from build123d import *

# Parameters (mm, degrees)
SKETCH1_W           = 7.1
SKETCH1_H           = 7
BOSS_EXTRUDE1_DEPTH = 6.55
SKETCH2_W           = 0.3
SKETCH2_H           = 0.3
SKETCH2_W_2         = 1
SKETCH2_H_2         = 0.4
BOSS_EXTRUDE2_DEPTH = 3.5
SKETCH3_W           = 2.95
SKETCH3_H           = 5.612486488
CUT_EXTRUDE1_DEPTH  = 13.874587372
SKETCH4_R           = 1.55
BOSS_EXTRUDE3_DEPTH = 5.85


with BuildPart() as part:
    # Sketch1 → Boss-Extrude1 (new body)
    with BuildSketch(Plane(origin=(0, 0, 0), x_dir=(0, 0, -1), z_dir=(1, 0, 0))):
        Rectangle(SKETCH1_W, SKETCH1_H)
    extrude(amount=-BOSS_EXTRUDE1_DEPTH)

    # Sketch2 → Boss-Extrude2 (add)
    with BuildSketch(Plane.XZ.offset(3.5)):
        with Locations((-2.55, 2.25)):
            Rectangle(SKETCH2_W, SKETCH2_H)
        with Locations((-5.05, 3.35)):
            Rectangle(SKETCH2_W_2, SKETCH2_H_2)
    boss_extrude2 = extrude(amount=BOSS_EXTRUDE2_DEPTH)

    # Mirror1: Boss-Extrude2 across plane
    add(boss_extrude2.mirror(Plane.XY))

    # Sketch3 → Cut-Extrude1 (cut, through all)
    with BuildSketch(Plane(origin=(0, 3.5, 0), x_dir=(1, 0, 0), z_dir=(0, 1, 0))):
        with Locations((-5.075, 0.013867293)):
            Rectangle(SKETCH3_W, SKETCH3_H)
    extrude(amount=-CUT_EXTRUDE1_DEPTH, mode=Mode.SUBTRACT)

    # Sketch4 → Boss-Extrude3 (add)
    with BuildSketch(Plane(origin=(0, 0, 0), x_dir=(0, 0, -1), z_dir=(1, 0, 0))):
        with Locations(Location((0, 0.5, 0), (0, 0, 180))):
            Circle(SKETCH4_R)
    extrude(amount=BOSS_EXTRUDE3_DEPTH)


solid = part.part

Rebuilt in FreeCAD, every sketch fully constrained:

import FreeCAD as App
import Part
import Sketcher
from FreeCAD import Vector


def add_polygon(sketch, points):
    """Adds a closed chain of lines whose ends are joined by coincident constraints."""
    first, n = sketch.GeometryCount, len(points)
    for a, b in zip(points, points[1:] + points[:1]):
        sketch.addGeometry(Part.LineSegment(App.Vector(*a, 0), App.Vector(*b, 0)), False)
    for i in range(n):
        sketch.addConstraint(Sketcher.Constraint("Coincident", first + i, 2, first + (i + 1) % n, 1))

doc = App.newDocument("Part")
params = doc.addObject("Spreadsheet::Sheet", "Params")
for row, (alias, value) in enumerate([
    ("sketch1_width", "7 mm"),
    ("sketch1_height", "7.1 mm"),
    ("pad1_length", "6.55 mm"),
    ("sketch2_width", "1 mm"),
    ("sketch2_width2", "0.3 mm"),
    ("sketch2_height", "0.4 mm"),
    ("pad2_length", "3.5 mm"),
    ("sketch3_width", "2.95 mm"),
    ("sketch4_diameter", "3.1 mm"),
    ("pad3_length", "5.85 mm"),
], start=1):
    params.set(f"A{row}", alias)
    params.set(f"B{row}", "=" + value)
    params.setAlias(f"B{row}", alias)

body = doc.addObject("PartDesign::Body", "Body")

# Sketch on YZ plane
sketch1 = doc.addObject("Sketcher::SketchObject", "Sketch")
body.addObject(sketch1)
sketch1.AttachmentSupport = (doc.YZ_Plane, [""])
sketch1.MapMode = "FlatFace"
add_polygon(sketch1, [(3.5, 3.55), (-3.5, 3.55), (-3.5, -3.55), (3.5, -3.55)])  # lines 0-3
sketch1.addConstraint(Sketcher.Constraint("Horizontal", 0))
sketch1.addConstraint(Sketcher.Constraint("Vertical", 1))
sketch1.addConstraint(Sketcher.Constraint("Horizontal", 2))
sketch1.addConstraint(Sketcher.Constraint("Vertical", 3))
sketch1.addConstraint(Sketcher.Constraint("Symmetric", 0, 2, 2, 2, -1, 1))
sketch1.addConstraint(Sketcher.Constraint("DistanceX", 0, 2, 0, 1, 7.0))
sketch1.addConstraint(Sketcher.Constraint("DistanceY", 1, 2, 1, 1, 7.1))
sketch1.setExpression("Constraints[9]", "Params.sketch1_width")
sketch1.setExpression("Constraints[10]", "Params.sketch1_height")
pad1 = doc.addObject("PartDesign::Pad", "Pad")
body.addObject(pad1)
pad1.Profile = sketch1
pad1.setExpression("Length", "Params.pad1_length")
pad1.Reversed = True

# Sketch on XZ plane
sketch2 = doc.addObject("Sketcher::SketchObject", "Sketch001")
body.addObject(sketch2)
sketch2.AttachmentSupport = (doc.XZ_Plane, [""])
sketch2.MapMode = "FlatFace"
sketch2.AttachmentOffset = App.Placement(Vector(0, 0, 3.5), App.Rotation())
add_polygon(sketch2, [(-2.7, 2.4), (-2.7, 2.1), (-2.4, 2.1), (-2.4, 2.4)])  # lines 0-3
add_polygon(sketch2, [(-5.55, 3.55), (-5.55, 3.15), (-4.55, 3.15), (-4.55, 3.55)])  # lines 4-7
sketch2.addConstraint(Sketcher.Constraint("Vertical", 0))
sketch2.addConstraint(Sketcher.Constraint("Horizontal", 1))
sketch2.addConstraint(Sketcher.Constraint("Vertical", 2))
sketch2.addConstraint(Sketcher.Constraint("Horizontal", 3))
sketch2.addConstraint(Sketcher.Constraint("Vertical", 4))
sketch2.addConstraint(Sketcher.Constraint("Horizontal", 5))
sketch2.addConstraint(Sketcher.Constraint("Vertical", 6))
sketch2.addConstraint(Sketcher.Constraint("Horizontal", 7))
sketch2.addConstraint(Sketcher.Constraint("Equal", 3, 0))
sketch2.addConstraint(Sketcher.Constraint("DistanceX", 5, 1, 5, 2, 1.0))
sketch2.addConstraint(Sketcher.Constraint("DistanceX", 1, 1, 1, 2, 0.3))
sketch2.addConstraint(Sketcher.Constraint("DistanceY", 4, 2, 4, 1, 0.4))
sketch2.addConstraint(Sketcher.Constraint("DistanceX", 0, 2, -1, 1, 2.7))
sketch2.addConstraint(Sketcher.Constraint("DistanceY", -1, 1, 0, 2, 2.1))
sketch2.addConstraint(Sketcher.Constraint("DistanceX", 4, 2, -1, 1, 5.55))
sketch2.addConstraint(Sketcher.Constraint("DistanceY", -1, 1, 4, 2, 3.15))
sketch2.setExpression("Constraints[17]", "Params.sketch2_width")
sketch2.setExpression("Constraints[18]", "Params.sketch2_width2")
sketch2.setExpression("Constraints[19]", "Params.sketch2_height")
pad2 = doc.addObject("PartDesign::Pad", "Pad001")
body.addObject(pad2)
pad2.Profile = sketch2
pad2.setExpression("Length", "Params.pad2_length")
doc.recompute()

mirrored = doc.addObject("PartDesign::Mirrored", "Mirrored")
body.addObject(mirrored)
mirrored.Originals = [pad2]
mirrored.MirrorPlane = (doc.XY_Plane, [""])
body.Tip = mirrored

# Sketch on XZ plane
sketch3 = doc.addObject("Sketcher::SketchObject", "Sketch002")
body.addObject(sketch3)
sketch3.AttachmentSupport = (doc.XZ_Plane, [""])
sketch3.MapMode = "FlatFace"
sketch3.AttachmentOffset = App.Placement(Vector(0, 0, -3.5), App.Rotation())
add_polygon(sketch3, [(-6.55, -2.820111), (-6.55, 2.792376), (-3.6, 2.792376), (-3.6, -2.820111)])  # lines 0-3
sketch3.addConstraint(Sketcher.Constraint("Vertical", 0))
sketch3.addConstraint(Sketcher.Constraint("Horizontal", 1))
sketch3.addConstraint(Sketcher.Constraint("Vertical", 2))
sketch3.addConstraint(Sketcher.Constraint("Horizontal", 3))
sketch3.addConstraint(Sketcher.Constraint("DistanceX", 1, 1, 1, 2, 2.95))
sketch3.addConstraint(Sketcher.Constraint("DistanceX", 1, 2, -1, 1, 3.6))
sketch3.addConstraint(Sketcher.Constraint("DistanceY", 0, 1, 0, 2, 5.612486))
sketch3.addConstraint(Sketcher.Constraint("DistanceY", 2, 2, -1, 1, 2.820111))
sketch3.setExpression("Constraints[8]", "Params.sketch3_width")
pocket1 = doc.addObject("PartDesign::Pocket", "Pocket")
body.addObject(pocket1)
pocket1.Profile = sketch3
pocket1.Type = "ThroughAll"
pocket1.Reversed = True

# Sketch on YZ plane
sketch4 = doc.addObject("Sketcher::SketchObject", "Sketch003")
body.addObject(sketch4)
sketch4.AttachmentSupport = (doc.YZ_Plane, [""])
sketch4.MapMode = "FlatFace"
sketch4.addGeometry(Part.Circle(Vector(0.5, 0, 0), Vector(0, 0, 1), 1.55), False)
sketch4.addConstraint(Sketcher.Constraint("PointOnObject", 0, 3, -1))
sketch4.addConstraint(Sketcher.Constraint("Diameter", 0, 3.1))
sketch4.addConstraint(Sketcher.Constraint("DistanceX", -1, 1, 0, 3, 0.5))
sketch4.setExpression("Constraints[1]", "Params.sketch4_diameter")
pad3 = doc.addObject("PartDesign::Pad", "Pad002")
body.addObject(pad3)
pad3.Profile = sketch4
pad3.setExpression("Length", "Params.pad3_length")

doc.recompute()
